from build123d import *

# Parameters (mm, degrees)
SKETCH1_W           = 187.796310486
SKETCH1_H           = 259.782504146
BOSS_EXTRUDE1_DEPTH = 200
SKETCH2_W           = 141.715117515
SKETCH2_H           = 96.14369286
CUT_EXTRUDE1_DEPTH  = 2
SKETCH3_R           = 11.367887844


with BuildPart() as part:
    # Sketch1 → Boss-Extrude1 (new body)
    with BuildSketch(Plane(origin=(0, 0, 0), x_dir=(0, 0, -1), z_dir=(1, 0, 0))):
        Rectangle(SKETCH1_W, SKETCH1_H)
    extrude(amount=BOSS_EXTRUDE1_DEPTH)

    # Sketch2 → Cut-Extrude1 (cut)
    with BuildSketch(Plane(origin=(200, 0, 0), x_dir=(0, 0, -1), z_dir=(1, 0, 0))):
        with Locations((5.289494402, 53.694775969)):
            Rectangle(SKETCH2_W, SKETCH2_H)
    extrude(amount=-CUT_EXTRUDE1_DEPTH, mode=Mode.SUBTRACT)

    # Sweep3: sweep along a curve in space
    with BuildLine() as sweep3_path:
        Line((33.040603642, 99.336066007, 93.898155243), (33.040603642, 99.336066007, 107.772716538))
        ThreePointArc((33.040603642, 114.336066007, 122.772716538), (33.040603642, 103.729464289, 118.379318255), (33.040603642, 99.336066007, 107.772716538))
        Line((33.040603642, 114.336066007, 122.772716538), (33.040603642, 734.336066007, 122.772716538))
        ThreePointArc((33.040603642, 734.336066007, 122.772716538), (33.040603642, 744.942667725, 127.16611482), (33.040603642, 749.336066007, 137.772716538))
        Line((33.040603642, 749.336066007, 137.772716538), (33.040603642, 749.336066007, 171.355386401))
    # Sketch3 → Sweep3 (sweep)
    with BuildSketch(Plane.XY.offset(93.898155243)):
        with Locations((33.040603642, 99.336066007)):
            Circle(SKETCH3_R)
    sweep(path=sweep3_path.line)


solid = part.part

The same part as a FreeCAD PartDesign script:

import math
import FreeCAD as App
import Part
import Sketcher
from FreeCAD import Vector
Q = App.Units.Quantity

doc = App.newDocument("Part")
params = doc.addObject("Spreadsheet::Sheet", "Params")
for row, (alias, value) in enumerate([
    ("pad1_length", "200 mm"),
    ("pocket1_length", "2 mm"),
    ("sketch4_radius", "15 mm"),
    ("sketch4_width", "620 mm"),
], start=1):
    params.set(f"A{row}", alias)
    params.set(f"B{row}", "=" + value)
    params.setAlias(f"B{row}", alias)

body = doc.addObject("PartDesign::Body", "Body")

sketch1 = body.newObject("Sketcher::SketchObject", "Sketch")
sketch1.AttachmentSupport = (doc.getObject("YZ_Plane"), [""])
sketch1.MapMode = "FlatFace"
sketch1.addGeometry([
    Part.LineSegment(Vector(130, 94, 0), Vector(-130, 94, 0)),
    Part.LineSegment(Vector(-130, 94, 0), Vector(-130, -94, 0)),
    Part.LineSegment(Vector(-130, -94, 0), Vector(130, -94, 0)),
    Part.LineSegment(Vector(130, -94, 0), Vector(130, 94, 0)),
], False)
sketch1.addConstraint([
    Sketcher.Constraint("Coincident", 0, 2, 1, 1),
    Sketcher.Constraint("Coincident", 1, 2, 2, 1),
    Sketcher.Constraint("Coincident", 2, 2, 3, 1),
    Sketcher.Constraint("Coincident", 3, 2, 0, 1),
    Sketcher.Constraint("Horizontal", 0),
    Sketcher.Constraint("Vertical", 1),
    Sketcher.Constraint("Horizontal", 2),
    Sketcher.Constraint("Vertical", 3),
    Sketcher.Constraint("Symmetric", 0, 2, 2, 2, -1, 1),
    Sketcher.Constraint("DistanceY", 1, 2, 1, 1, Q("187.79631 mm")),
    Sketcher.Constraint("DistanceX", 0, 2, 0, 1, Q("259.782504 mm")),
])
pad1 = body.newObject("PartDesign::Pad", "Pad")
pad1.Profile = sketch1
pad1.setExpression("Length", "Params.pad1_length")

sketch2 = body.newObject("Sketcher::SketchObject", "Sketch001")
sketch2.AttachmentSupport = (doc.getObject("YZ_Plane"), [""])
sketch2.MapMode = "FlatFace"
sketch2.AttachmentOffset = App.Placement(Vector(0, 0, 200), App.Rotation())
sketch2.addGeometry([
    Part.LineSegment(Vector(102, 66, 0), Vector(6, 66, 0)),
    Part.LineSegment(Vector(6, 66, 0), Vector(6, -76, 0)),
    Part.LineSegment(Vector(6, -76, 0), Vector(102, -76, 0)),
    Part.LineSegment(Vector(102, -76, 0), Vector(102, 66, 0)),
], False)
sketch2.addConstraint([
    Sketcher.Constraint("Coincident", 0, 2, 1, 1),
    Sketcher.Constraint("Coincident", 1, 2, 2, 1),
    Sketcher.Constraint("Coincident", 2, 2, 3, 1),
    Sketcher.Constraint("Coincident", 3, 2, 0, 1),
    Sketcher.Constraint("Horizontal", 0),
    Sketcher.Constraint("Vertical", 1),
    Sketcher.Constraint("Horizontal", 2),
    Sketcher.Constraint("Vertical", 3),
    Sketcher.Constraint("DistanceX", 0, 2, 0, 1, Q("96.143693 mm")),
    Sketcher.Constraint("DistanceY", 1, 2, 1, 1, Q("141.715118 mm")),
    Sketcher.Constraint("DistanceX", -1, 1, 0, 2, Q("5.62293 mm")),
    Sketcher.Constraint("DistanceY", -1, 1, 0, 2, Q("65.568064 mm")),
])
pocket1 = body.newObject("PartDesign::Pocket", "Pocket")
pocket1.Profile = sketch2
pocket1.setExpression("Length", "Params.pocket1_length")

sketch3 = body.newObject("Sketcher::SketchObject", "Sketch002")
sketch3.AttachmentSupport = (doc.getObject("XY_Plane"), [""])
sketch3.MapMode = "FlatFace"
sketch3.AttachmentOffset = App.Placement(Vector(0, 0, 93.898155), App.Rotation())
sketch3.addGeometry(Part.Circle(Vector(33, 99, 0), Vector(0, 0, 1), 11), False)
sketch3.addConstraint([
    Sketcher.Constraint("Diameter", 0, Q("22.735776 mm")),
    Sketcher.Constraint("DistanceX", -1, 1, 0, 3, Q("33.040604 mm")),
    Sketcher.Constraint("DistanceY", -1, 1, 0, 3, Q("99.336066 mm")),
])

sketch4 = body.newObject("Sketcher::SketchObject", "Sketch003")
sketch4.AttachmentSupport = (doc.getObject("YZ_Plane"), [""])
sketch4.MapMode = "FlatFace"
sketch4.AttachmentOffset = App.Placement(Vector(0, 0, 33.040604), App.Rotation())
sketch4.addGeometry([
    Part.LineSegment(Vector(99, 94, 0), Vector(99, 108, 0)),
    Part.ArcOfCircle(Part.Circle(Vector(114, 108, 0), Vector(0, 0, 1), 15), math.radians(90), math.radians(180)),
    Part.LineSegment(Vector(114, 123, 0), Vector(734, 123, 0)),
    Part.ArcOfCircle(Part.Circle(Vector(734, 138, 0), Vector(0, 0, 1), 15), math.radians(-90), math.radians(0)),
    Part.LineSegment(Vector(749, 138, 0), Vector(749, 171, 0)),
], False)
sketch4.addConstraint([
    Sketcher.Constraint("Tangent", 0, 2, 1, 2),
    Sketcher.Constraint("Tangent", 1, 1, 2, 1),
    Sketcher.Constraint("Tangent", 2, 2, 3, 1),
    Sketcher.Constraint("Tangent", 3, 2, 4, 1),
    Sketcher.Constraint("Vertical", 0),
    Sketcher.Constraint("Horizontal", 2),
    Sketcher.Constraint("Vertical", 4),
    Sketcher.Constraint("Equal", 1, 3),
    Sketcher.Constraint("Radius", 1, Q("15 mm")),
    Sketcher.Constraint("DistanceX", 2, 1, 2, 2, Q("620 mm")),
    Sketcher.Constraint("DistanceY", 0, 1, 0, 2, Q("13.874561 mm")),
    Sketcher.Constraint("DistanceY", 4, 1, 4, 2, Q("33.58267 mm")),
    Sketcher.Constraint("DistanceX", -1, 1, 1, 3, Q("114.336066 mm")),
    Sketcher.Constraint("DistanceY", -1, 1, 1, 3, Q("107.772717 mm")),
])
sketch4.setExpression("Constraints[8]", "Params.sketch4_radius")
sketch4.setExpression("Constraints[9]", "Params.sketch4_width")
doc.recompute()

additivepipe = body.newObject("PartDesign::AdditivePipe", "AdditivePipe")
additivepipe.Profile = sketch3
additivepipe.Spine = (sketch4, ["Edge1", "Edge2", "Edge3", "Edge4", "Edge5"])

doc.recompute()
